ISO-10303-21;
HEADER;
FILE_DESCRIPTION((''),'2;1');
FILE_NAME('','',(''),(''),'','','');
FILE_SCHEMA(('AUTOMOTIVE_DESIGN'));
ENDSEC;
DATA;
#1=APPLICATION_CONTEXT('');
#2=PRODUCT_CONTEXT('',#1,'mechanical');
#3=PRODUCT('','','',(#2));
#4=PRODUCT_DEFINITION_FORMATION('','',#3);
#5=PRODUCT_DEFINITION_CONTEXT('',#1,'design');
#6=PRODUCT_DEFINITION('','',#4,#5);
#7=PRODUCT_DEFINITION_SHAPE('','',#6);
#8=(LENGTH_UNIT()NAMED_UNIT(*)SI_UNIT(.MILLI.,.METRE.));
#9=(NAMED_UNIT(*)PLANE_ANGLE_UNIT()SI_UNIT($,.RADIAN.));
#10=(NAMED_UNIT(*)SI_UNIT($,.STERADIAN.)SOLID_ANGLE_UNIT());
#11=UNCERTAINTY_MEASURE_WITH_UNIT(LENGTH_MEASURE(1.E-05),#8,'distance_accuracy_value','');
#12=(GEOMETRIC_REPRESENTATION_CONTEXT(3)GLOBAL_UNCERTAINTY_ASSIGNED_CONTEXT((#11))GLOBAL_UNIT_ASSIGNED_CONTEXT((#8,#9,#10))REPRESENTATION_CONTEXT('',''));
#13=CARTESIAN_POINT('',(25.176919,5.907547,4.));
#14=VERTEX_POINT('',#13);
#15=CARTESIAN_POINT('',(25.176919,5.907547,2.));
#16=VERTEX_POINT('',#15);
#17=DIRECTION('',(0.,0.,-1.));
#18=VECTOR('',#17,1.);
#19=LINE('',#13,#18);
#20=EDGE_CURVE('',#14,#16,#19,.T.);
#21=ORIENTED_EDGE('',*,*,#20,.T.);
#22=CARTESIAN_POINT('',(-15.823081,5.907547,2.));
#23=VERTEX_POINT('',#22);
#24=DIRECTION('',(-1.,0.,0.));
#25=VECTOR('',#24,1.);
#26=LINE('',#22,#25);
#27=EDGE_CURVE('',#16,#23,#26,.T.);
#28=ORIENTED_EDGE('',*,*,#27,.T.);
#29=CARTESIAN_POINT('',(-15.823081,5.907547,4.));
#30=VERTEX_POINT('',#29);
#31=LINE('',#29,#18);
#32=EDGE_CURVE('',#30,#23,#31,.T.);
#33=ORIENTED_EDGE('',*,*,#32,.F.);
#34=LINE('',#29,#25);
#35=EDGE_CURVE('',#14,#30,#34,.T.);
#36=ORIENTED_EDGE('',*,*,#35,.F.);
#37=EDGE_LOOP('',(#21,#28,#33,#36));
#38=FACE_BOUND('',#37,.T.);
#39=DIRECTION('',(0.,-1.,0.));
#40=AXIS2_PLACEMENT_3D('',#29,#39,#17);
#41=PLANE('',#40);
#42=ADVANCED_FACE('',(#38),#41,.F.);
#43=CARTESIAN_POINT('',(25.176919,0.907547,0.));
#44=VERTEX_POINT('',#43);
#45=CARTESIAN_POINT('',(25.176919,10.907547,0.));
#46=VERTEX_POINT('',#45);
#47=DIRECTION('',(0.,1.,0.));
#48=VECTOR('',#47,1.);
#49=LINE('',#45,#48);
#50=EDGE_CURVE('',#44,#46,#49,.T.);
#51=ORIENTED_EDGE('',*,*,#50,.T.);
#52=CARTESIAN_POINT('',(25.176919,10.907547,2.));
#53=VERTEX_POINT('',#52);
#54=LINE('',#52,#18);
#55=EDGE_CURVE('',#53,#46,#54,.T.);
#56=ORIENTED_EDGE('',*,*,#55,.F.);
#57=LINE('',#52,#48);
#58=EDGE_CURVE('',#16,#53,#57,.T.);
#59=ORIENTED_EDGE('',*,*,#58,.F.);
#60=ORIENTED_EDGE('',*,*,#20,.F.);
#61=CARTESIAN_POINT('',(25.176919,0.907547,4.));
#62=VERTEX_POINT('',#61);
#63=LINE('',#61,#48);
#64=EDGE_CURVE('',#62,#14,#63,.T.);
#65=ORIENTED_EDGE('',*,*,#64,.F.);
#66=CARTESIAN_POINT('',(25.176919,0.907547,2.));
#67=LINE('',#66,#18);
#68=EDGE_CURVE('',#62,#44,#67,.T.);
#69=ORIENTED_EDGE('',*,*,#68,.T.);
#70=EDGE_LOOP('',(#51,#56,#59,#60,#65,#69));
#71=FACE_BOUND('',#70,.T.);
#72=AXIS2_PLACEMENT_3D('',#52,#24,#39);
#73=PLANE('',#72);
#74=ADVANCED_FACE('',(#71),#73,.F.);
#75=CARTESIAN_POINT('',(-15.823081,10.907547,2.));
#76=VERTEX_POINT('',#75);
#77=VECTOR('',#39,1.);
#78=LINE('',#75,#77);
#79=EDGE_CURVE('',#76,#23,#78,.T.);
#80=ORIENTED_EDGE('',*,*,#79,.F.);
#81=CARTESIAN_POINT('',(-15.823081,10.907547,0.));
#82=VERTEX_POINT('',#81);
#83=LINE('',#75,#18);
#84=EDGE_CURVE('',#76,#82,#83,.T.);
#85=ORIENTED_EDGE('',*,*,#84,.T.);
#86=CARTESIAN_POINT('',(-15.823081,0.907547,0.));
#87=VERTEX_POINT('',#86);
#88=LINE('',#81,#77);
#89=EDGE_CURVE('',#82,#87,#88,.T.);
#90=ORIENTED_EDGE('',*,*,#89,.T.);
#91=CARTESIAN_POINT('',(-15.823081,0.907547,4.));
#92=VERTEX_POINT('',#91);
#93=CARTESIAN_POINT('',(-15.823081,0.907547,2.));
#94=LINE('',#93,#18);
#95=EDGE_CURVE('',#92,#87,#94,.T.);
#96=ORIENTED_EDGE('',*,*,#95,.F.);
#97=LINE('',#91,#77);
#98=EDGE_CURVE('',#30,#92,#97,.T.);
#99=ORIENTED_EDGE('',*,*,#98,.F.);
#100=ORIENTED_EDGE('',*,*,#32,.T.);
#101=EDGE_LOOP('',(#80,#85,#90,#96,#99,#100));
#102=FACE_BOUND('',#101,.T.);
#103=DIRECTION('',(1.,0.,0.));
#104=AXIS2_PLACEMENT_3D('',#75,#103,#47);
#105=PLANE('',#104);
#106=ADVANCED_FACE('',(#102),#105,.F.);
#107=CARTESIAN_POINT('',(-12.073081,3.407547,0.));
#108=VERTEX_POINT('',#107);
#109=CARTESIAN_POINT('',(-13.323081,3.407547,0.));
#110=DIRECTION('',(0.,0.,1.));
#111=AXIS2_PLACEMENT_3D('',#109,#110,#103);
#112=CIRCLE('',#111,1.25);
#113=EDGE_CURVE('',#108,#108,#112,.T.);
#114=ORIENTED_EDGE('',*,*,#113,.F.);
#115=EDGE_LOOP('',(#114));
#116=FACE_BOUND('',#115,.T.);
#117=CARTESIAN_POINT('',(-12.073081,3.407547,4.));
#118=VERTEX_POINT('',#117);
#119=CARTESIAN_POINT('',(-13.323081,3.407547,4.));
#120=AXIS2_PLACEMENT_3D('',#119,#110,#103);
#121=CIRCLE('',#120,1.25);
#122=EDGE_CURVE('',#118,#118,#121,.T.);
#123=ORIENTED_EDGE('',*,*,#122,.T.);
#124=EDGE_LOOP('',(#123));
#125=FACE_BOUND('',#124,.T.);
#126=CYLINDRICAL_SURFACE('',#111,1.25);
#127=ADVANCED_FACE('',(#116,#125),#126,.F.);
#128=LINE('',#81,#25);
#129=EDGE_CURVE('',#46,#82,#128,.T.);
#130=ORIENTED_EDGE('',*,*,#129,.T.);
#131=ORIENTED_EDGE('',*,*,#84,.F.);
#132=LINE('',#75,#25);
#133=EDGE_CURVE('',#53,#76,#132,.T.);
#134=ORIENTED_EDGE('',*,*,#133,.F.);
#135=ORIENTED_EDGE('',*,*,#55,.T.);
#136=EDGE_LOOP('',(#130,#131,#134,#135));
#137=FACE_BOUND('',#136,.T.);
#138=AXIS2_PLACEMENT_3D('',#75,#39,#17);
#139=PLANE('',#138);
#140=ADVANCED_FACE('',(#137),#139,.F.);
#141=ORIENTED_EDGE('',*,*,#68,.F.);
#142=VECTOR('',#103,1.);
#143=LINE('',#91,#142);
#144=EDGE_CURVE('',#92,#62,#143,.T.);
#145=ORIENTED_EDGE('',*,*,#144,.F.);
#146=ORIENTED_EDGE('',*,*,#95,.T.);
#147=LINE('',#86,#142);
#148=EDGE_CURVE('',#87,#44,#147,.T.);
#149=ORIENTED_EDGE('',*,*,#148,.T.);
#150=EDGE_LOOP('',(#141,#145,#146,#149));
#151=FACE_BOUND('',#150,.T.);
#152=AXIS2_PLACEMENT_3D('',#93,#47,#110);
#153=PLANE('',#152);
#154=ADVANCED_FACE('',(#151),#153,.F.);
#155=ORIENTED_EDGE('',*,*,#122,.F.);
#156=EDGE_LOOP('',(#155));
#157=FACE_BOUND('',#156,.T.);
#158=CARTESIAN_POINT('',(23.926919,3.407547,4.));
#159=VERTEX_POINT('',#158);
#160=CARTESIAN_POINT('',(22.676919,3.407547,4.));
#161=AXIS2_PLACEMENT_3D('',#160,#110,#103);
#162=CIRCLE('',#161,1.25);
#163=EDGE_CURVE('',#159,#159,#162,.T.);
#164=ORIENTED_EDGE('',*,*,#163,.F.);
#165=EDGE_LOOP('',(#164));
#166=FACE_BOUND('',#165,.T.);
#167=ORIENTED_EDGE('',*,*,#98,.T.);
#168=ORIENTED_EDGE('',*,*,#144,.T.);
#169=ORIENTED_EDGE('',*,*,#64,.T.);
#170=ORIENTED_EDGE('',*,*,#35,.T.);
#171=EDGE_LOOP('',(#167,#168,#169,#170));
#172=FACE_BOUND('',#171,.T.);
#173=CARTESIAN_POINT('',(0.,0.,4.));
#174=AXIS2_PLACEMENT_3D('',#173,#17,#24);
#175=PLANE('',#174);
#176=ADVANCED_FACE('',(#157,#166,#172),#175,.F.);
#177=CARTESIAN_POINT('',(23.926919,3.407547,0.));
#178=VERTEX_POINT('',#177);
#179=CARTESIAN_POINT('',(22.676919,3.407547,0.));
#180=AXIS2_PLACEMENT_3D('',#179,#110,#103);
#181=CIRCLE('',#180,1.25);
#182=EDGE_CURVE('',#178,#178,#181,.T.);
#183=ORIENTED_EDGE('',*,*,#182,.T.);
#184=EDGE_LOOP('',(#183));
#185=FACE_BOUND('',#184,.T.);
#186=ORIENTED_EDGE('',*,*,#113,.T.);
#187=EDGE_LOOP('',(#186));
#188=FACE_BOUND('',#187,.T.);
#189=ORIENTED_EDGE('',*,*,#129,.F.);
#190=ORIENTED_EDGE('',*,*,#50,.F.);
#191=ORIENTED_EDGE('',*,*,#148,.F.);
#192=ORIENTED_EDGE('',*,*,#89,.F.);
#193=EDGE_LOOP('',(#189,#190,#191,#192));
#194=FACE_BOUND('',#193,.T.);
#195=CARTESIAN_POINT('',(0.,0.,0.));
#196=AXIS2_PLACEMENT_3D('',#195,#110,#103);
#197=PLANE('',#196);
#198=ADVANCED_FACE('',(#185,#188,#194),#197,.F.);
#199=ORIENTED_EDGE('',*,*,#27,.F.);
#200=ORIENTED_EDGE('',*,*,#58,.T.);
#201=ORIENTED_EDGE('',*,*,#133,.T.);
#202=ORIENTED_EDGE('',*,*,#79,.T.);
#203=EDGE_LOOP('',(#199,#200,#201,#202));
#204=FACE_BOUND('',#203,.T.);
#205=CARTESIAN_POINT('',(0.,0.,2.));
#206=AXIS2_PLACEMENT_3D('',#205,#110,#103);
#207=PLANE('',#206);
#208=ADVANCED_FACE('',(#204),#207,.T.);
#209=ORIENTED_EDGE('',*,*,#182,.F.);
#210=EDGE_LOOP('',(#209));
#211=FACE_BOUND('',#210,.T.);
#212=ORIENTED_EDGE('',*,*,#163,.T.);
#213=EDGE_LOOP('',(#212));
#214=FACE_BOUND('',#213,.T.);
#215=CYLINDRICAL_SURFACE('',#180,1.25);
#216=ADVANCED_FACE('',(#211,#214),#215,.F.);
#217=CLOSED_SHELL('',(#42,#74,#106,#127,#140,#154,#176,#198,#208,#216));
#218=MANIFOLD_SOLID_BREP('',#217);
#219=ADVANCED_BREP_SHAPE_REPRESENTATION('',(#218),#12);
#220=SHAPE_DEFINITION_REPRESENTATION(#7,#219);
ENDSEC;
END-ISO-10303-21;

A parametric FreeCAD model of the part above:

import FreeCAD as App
import Part
import Sketcher
from FreeCAD import Vector


def add_polygon(sketch, points):
    """Adds a closed chain of lines whose ends are joined by coincident constraints."""
    first, n = sketch.GeometryCount, len(points)
    for a, b in zip(points, points[1:] + points[:1]):
        sketch.addGeometry(Part.LineSegment(App.Vector(*a, 0), App.Vector(*b, 0)), False)
    for i in range(n):
        sketch.addConstraint(Sketcher.Constraint("Coincident", first + i, 2, first + (i + 1) % n, 1))

doc = App.newDocument("Part")
params = doc.addObject("Spreadsheet::Sheet", "Params")
for row, (alias, value) in enumerate([
    ("sketch1_width", "41 mm"),
    ("sketch1_height", "10 mm"),
    ("pad1_length", "2 mm"),
    ("sketch2_width", "41 mm"),
    ("sketch2_height", "5 mm"),
    ("pad2_length", "2 mm"),
    ("sketch3_diameter", "2.5 mm"),
], start=1):
    params.set(f"A{row}", alias)
    params.set(f"B{row}", "=" + value)
    params.setAlias(f"B{row}", alias)

body = doc.addObject("PartDesign::Body", "Body")

sketch1 = body.newObject("Sketcher::SketchObject", "Sketch")
sketch1.AttachmentSupport = (doc.getObject("XY_Plane"), [""])
sketch1.MapMode = "FlatFace"
add_polygon(sketch1, [(-16, 11), (-16, 1), (25, 1), (25, 11)])
sketch1.addConstraint(Sketcher.Constraint("Vertical", 0))
sketch1.addConstraint(Sketcher.Constraint("Horizontal", 1))
sketch1.addConstraint(Sketcher.Constraint("Vertical", 2))
sketch1.addConstraint(Sketcher.Constraint("Horizontal", 3))
sketch1.addConstraint(Sketcher.Constraint("DistanceX", 1, 1, 1, 2, 41.0))
sketch1.addConstraint(Sketcher.Constraint("DistanceY", 0, 2, 0, 1, 10.0))
sketch1.addConstraint(Sketcher.Constraint("DistanceX", 0, 2, -1, 1, 15.823081))
sketch1.addConstraint(Sketcher.Constraint("DistanceY", -1, 1, 0, 2, 0.907547))
sketch1.setExpression("Constraints[8]", "Params.sketch1_width")
sketch1.setExpression("Constraints[9]", "Params.sketch1_height")
pad1 = body.newObject("PartDesign::Pad", "Pad")
pad1.Profile = sketch1
pad1.setExpression("Length", "Params.pad1_length")

sketch2 = body.newObject("Sketcher::SketchObject", "Sketch001")
sketch2.AttachmentSupport = (doc.getObject("XY_Plane"), [""])
sketch2.MapMode = "FlatFace"
sketch2.AttachmentOffset = App.Placement(Vector(0, 0, 2), App.Rotation())
add_polygon(sketch2, [(-16, 6), (-16, 1), (25, 1), (25, 6)])
sketch2.addConstraint(Sketcher.Constraint("Vertical", 0))
sketch2.addConstraint(Sketcher.Constraint("Horizontal", 1))
sketch2.addConstraint(Sketcher.Constraint("Vertical", 2))
sketch2.addConstraint(Sketcher.Constraint("Horizontal", 3))
sketch2.addConstraint(Sketcher.Constraint("DistanceX", 1, 1, 1, 2, 41.0))
sketch2.addConstraint(Sketcher.Constraint("DistanceY", 0, 2, 0, 1, 5.0))
sketch2.addConstraint(Sketcher.Constraint("DistanceX", 0, 2, -1, 1, 15.823081))
sketch2.addConstraint(Sketcher.Constraint("DistanceY", -1, 1, 0, 2, 0.907547))
sketch2.setExpression("Constraints[8]", "Params.sketch2_width")
sketch2.setExpression("Constraints[9]", "Params.sketch2_height")
pad2 = body.newObject("PartDesign::Pad", "Pad001")
pad2.Profile = sketch2
pad2.setExpression("Length", "Params.pad2_length")

sketch3 = body.newObject("Sketcher::SketchObject", "Sketch002")
sketch3.AttachmentSupport = (doc.getObject("XY_Plane"), [""])
sketch3.MapMode = "FlatFace"
sketch3.AttachmentOffset = App.Placement(Vector(0, 0, 4), App.Rotation())
sketch3.addGeometry(Part.Circle(Vector(-13.3, 3.4, 0), Vector(0, 0, 1), 1.2), False)
sketch3.addGeometry(Part.Circle(Vector(22.7, 3.4, 0), Vector(0, 0, 1), 1.2), False)
sketch3.addConstraint(Sketcher.Constraint("Equal", 0, 1))
sketch3.addConstraint(Sketcher.Constraint("Horizontal", 0, 3, 1, 3))
sketch3.addConstraint(Sketcher.Constraint("Diameter", 0, 2.5))
sketch3.addConstraint(Sketcher.Constraint("DistanceX", 0, 3, 1, 3, 36.0))
sketch3.addConstraint(Sketcher.Constraint("DistanceX", 0, 3, -1, 1, 13.323081))
sketch3.addConstraint(Sketcher.Constraint("DistanceY", -1, 1, 0, 3, 3.407547))
sketch3.setExpression("Constraints[2]", "Params.sketch3_diameter")
pocket1 = body.newObject("PartDesign::Pocket", "Pocket")
pocket1.Profile = sketch3
pocket1.Type = "ThroughAll"

doc.recompute()
